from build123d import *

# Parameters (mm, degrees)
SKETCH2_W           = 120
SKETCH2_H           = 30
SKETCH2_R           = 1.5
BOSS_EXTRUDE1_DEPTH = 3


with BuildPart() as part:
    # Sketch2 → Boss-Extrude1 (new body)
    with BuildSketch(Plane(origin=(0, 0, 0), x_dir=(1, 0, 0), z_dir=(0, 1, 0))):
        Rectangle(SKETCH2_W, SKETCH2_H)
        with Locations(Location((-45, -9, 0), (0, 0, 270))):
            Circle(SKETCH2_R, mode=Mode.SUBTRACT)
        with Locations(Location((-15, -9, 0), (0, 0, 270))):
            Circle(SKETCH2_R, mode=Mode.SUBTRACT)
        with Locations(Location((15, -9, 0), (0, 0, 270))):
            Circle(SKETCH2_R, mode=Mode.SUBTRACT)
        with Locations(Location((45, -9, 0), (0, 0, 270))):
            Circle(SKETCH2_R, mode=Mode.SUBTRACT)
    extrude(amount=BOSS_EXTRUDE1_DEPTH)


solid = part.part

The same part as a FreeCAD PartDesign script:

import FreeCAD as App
import Part
import Sketcher

V = App.Vector


def add_polygon(sketch, points):
    """Adds a closed chain of lines whose ends are joined by coincident constraints."""
    first, n = sketch.GeometryCount, len(points)
    for a, b in zip(points, points[1:] + points[:1]):
        sketch.addGeometry(Part.LineSegment(App.Vector(*a, 0), App.Vector(*b, 0)), False)
    for i in range(n):
        sketch.addConstraint(Sketcher.Constraint("Coincident", first + i, 2, first + (i + 1) % n, 1))

doc = App.newDocument("Part")
body = doc.addObject("PartDesign::Body", "Body")

sketch1 = body.newObject("Sketcher::SketchObject", "Sketch")
sketch1.AttachmentSupport = (doc.getObject("XZ_Plane"), [""])
sketch1.MapMode = "FlatFace"
add_polygon(sketch1, [(-60, -15), (-60, 15), (60, 15), (60, -15)])
sketch1.addGeometry(Part.Circle(V(-45, 9, 0), V(0, 0, 1), 1.5), False)
sketch1.addGeometry(Part.Circle(V(-15, 9, 0), V(0, 0, 1), 1.5), False)
sketch1.addGeometry(Part.Circle(V(15, 9, 0), V(0, 0, 1), 1.5), False)
sketch1.addGeometry(Part.Circle(V(45, 9, 0), V(0, 0, 1), 1.5), False)
sketch1.addConstraint([
    Sketcher.Constraint("Vertical", 0),
    Sketcher.Constraint("Horizontal", 1),
    Sketcher.Constraint("Vertical", 2),
    Sketcher.Constraint("Horizontal", 3),
    Sketcher.Constraint("Equal", 4, 5),
    Sketcher.Constraint("Equal", 5, 6),
    Sketcher.Constraint("Equal", 6, 7),
    Sketcher.Constraint("Symmetric", 0, 2, 2, 2, -1, 1),
    Sketcher.Constraint("Symmetric", 5, 3, 6, 3, -2),
    Sketcher.Constraint("Symmetric", 4, 3, 7, 3, -2),
    Sketcher.Constraint("Horizontal", 4, 3, 5, 3),
    Sketcher.Constraint("Diameter", 4, 3.0),
    Sketcher.Constraint("DistanceX", 1, 1, 1, 2, 120.0),
    Sketcher.Constraint("DistanceY", 0, 1, 0, 2, 30.0),
    Sketcher.Constraint("DistanceX", 4, 3, -1, 1, 45.0),
    Sketcher.Constraint("DistanceY", -1, 1, 4, 3, 9.0),
    Sketcher.Constraint("DistanceX", 5, 3, -1, 1, 15.0),
])
pad1 = body.newObject("PartDesign::Pad", "Pad")
pad1.Profile = sketch1
pad1.Length = 3
pad1.Reversed = True

doc.recompute()
